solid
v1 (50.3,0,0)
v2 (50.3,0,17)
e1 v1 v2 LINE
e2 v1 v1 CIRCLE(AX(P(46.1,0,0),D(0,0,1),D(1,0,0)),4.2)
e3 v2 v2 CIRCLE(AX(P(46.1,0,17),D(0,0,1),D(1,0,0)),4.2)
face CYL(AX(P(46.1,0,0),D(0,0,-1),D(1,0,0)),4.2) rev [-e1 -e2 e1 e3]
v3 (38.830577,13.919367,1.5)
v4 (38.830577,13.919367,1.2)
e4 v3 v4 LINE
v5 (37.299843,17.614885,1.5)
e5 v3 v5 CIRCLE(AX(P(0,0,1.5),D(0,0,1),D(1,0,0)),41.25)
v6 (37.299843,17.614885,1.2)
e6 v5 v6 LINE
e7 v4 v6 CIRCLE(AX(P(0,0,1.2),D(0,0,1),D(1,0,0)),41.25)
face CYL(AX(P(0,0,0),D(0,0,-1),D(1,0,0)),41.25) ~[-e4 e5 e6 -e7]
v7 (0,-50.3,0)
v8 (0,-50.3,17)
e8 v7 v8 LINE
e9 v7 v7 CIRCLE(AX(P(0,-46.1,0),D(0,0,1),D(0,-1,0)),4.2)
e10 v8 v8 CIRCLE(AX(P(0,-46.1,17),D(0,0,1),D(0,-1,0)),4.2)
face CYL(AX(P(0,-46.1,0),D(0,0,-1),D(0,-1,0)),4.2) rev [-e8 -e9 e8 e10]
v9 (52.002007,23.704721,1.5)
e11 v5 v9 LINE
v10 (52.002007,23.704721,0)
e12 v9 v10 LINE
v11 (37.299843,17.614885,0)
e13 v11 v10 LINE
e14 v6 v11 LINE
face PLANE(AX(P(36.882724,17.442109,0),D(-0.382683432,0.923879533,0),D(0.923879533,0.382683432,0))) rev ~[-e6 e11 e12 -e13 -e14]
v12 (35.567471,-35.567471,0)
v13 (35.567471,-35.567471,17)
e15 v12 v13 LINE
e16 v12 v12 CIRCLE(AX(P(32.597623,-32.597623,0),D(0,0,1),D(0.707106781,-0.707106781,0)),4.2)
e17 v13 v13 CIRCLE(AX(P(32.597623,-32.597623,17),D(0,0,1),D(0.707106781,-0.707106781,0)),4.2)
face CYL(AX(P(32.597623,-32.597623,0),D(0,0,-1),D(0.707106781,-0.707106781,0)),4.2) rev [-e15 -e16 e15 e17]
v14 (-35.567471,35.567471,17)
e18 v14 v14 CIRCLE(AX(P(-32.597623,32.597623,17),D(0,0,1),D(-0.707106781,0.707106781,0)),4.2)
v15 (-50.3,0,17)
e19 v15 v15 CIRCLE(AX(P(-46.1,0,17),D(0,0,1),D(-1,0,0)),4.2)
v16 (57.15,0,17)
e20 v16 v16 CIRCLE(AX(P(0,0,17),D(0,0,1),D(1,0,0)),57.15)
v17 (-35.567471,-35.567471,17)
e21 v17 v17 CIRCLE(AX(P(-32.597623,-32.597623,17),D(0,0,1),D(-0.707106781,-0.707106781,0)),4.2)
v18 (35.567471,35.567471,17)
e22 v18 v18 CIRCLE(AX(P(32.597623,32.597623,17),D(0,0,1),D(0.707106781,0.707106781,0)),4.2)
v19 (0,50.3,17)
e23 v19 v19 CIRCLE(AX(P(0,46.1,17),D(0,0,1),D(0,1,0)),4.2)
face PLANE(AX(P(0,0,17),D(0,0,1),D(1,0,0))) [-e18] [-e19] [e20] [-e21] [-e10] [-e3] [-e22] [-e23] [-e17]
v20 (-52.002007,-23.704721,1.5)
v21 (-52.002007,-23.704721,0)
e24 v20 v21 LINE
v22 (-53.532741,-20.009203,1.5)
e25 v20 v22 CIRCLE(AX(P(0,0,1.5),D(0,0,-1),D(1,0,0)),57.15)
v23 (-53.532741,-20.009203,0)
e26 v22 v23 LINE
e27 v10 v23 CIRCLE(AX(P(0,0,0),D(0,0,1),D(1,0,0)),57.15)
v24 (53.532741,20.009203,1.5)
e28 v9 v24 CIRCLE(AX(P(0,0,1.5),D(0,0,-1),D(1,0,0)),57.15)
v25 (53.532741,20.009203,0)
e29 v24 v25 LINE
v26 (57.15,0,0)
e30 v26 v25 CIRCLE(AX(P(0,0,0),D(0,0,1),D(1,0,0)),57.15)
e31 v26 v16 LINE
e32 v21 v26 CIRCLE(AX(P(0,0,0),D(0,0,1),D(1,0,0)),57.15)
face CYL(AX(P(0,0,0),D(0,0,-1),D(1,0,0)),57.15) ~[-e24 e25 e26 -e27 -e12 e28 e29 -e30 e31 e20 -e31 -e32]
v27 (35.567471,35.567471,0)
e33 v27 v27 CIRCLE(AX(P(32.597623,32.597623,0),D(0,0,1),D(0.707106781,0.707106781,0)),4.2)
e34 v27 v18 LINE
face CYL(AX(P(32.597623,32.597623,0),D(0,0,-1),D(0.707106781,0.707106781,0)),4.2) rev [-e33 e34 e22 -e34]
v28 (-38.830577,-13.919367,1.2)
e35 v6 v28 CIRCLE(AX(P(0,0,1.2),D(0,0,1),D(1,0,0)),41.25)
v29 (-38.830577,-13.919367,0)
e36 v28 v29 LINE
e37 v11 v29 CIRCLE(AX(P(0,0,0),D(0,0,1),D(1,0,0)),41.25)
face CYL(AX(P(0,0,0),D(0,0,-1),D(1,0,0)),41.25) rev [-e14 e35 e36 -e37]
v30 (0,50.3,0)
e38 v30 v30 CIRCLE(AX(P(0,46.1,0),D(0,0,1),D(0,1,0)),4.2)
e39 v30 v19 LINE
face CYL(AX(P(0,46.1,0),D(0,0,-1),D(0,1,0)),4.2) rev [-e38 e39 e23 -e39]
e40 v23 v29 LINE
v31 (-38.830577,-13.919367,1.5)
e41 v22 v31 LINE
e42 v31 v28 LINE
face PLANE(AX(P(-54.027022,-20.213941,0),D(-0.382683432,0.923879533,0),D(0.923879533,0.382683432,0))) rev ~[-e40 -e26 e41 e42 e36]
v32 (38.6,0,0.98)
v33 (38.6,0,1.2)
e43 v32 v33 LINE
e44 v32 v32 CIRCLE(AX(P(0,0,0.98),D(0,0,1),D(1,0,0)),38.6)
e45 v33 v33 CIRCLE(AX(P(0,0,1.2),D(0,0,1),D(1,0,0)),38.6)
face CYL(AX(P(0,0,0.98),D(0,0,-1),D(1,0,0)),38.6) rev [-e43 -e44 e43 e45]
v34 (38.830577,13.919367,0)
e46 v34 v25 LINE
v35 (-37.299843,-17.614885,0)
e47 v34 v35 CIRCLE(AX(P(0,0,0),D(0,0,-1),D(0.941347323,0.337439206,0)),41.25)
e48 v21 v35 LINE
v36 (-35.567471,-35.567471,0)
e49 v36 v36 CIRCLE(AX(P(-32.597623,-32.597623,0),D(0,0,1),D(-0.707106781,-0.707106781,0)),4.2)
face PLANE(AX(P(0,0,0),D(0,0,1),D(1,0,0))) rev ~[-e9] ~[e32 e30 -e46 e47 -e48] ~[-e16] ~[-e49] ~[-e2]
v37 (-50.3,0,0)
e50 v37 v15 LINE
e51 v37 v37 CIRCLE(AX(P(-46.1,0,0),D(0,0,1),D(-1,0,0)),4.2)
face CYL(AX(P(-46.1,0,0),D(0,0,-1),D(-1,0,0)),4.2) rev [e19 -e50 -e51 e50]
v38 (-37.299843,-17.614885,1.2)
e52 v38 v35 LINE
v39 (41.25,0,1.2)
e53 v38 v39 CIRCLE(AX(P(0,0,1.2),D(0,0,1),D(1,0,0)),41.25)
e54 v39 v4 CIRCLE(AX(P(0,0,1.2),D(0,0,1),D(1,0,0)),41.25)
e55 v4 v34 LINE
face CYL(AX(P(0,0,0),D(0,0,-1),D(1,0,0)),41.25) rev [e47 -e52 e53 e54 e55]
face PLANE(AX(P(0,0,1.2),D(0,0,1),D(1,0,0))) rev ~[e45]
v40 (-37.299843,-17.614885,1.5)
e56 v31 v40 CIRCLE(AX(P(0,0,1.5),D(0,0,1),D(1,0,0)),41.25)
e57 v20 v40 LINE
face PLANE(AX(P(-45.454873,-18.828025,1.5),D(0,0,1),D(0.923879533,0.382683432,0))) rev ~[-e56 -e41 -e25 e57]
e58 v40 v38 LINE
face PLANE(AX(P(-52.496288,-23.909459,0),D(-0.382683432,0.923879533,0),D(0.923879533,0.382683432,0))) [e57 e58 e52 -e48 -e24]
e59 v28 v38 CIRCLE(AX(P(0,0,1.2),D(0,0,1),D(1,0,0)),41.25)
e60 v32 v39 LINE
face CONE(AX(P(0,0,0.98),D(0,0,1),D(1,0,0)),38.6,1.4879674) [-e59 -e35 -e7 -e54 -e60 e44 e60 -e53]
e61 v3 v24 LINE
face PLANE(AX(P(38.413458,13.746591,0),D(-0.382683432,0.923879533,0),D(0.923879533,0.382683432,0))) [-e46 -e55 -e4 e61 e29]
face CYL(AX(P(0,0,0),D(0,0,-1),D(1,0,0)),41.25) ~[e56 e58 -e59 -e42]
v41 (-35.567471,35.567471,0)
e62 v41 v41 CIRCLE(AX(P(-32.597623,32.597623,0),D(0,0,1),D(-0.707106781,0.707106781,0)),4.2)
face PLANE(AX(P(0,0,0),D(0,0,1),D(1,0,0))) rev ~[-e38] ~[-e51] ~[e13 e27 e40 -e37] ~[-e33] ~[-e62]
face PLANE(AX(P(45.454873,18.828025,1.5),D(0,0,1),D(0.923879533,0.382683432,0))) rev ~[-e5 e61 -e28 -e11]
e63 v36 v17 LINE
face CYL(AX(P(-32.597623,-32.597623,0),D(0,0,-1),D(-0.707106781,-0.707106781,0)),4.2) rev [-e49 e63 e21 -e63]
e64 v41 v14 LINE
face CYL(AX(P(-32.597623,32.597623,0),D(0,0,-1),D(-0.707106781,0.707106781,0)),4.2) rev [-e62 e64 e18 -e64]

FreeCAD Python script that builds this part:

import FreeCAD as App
import Part
import Sketcher
from FreeCAD import Vector


def add_polygon(sketch, points):
    """Adds a closed chain of lines whose ends are joined by coincident constraints."""
    first, n = sketch.GeometryCount, len(points)
    for a, b in zip(points, points[1:] + points[:1]):
        sketch.addGeometry(Part.LineSegment(App.Vector(*a, 0), App.Vector(*b, 0)), False)
    for i in range(n):
        sketch.addConstraint(Sketcher.Constraint("Coincident", first + i, 2, first + (i + 1) % n, 1))

doc = App.newDocument("Part")
body = doc.addObject("PartDesign::Body", "Body")

sketch1 = body.newObject("Sketcher::SketchObject", "Sketch")
sketch1.AttachmentSupport = (doc.getObject("XY_Plane"), [""])
sketch1.MapMode = "FlatFace"
sketch1.addGeometry(Part.Circle(Vector(0, 0, 0), Vector(0, 0, 1), 41), False)
sketch1.addConstraint(Sketcher.Constraint("Coincident", 0, 3, -1, 1))
sketch1.addConstraint(Sketcher.Constraint("Diameter", 0, 82.5))
pad1 = body.newObject("PartDesign::Pad", "Pad")
pad1.Profile = sketch1
pad1.Length = 1.5
body2 = doc.addObject("PartDesign::Body", "Body001")

sketch2 = body2.newObject("Sketcher::SketchObject", "Sketch001")
sketch2.AttachmentSupport = (doc.getObject("XY_Plane001"), [""])
sketch2.MapMode = "FlatFace"
add_polygon(sketch2, [(40.8, 2), (40.8, -2), (57.6, -2), (57.6, 2)])
sketch2.addConstraint(Sketcher.Constraint("Vertical", 0))
sketch2.addConstraint(Sketcher.Constraint("Horizontal", 1))
sketch2.addConstraint(Sketcher.Constraint("Vertical", 2))
sketch2.addConstraint(Sketcher.Constraint("Horizontal", 3))
sketch2.addConstraint(Sketcher.Constraint("DistanceY", 0, 2, 0, 1, 4.0))
sketch2.addConstraint(Sketcher.Constraint("DistanceX", 1, 1, 1, 2, 16.9))
sketch2.addConstraint(Sketcher.Constraint("DistanceY", 0, 2, -1, 1, 2.0))
sketch2.addConstraint(Sketcher.Constraint("DistanceX", -1, 1, 0, 2, 40.75))
pad2 = body2.newObject("PartDesign::Pad", "Pad001")
pad2.Profile = sketch2
pad2.Length = 1.5
body3 = doc.addObject("PartDesign::Body", "Body002")
body3.AllowCompound = True

sketch3 = body3.newObject("Sketcher::SketchObject", "Sketch002")
sketch3.AttachmentSupport = (doc.getObject("XY_Plane002"), [""])
sketch3.MapMode = "FlatFace"
add_polygon(sketch3, [(-57.6, 2), (-57.6, -2), (-40.8, -2), (-40.8, 2)])
sketch3.addConstraint(Sketcher.Constraint("Vertical", 0))
sketch3.addConstraint(Sketcher.Constraint("Horizontal", 1))
sketch3.addConstraint(Sketcher.Constraint("Vertical", 2))
sketch3.addConstraint(Sketcher.Constraint("Horizontal", 3))
sketch3.addConstraint(Sketcher.Constraint("DistanceY", 0, 2, 0, 1, 4.0))
sketch3.addConstraint(Sketcher.Constraint("DistanceX", 1, 1, 1, 2, 16.9))
sketch3.addConstraint(Sketcher.Constraint("DistanceY", 0, 2, -1, 1, 2.0))
sketch3.addConstraint(Sketcher.Constraint("DistanceX", 0, 2, -1, 1, 57.65))
pad3 = body3.newObject("PartDesign::Pad", "Pad002")
pad3.Profile = sketch3
pad3.Length = 1.5
doc.recompute()

boolean = body3.newObject("PartDesign::Boolean", "Boolean")
boolean.Type = "Fuse"
boolean.addObjects([body2])
body4 = doc.addObject("PartDesign::Body", "Body003")
body4.AllowCompound = True
doc.recompute()

body3.Placement = App.Placement(Vector(0, 0, 0), App.Rotation(Vector(0, 0, 1), 22.5))
boolean2 = body4.newObject("PartDesign::Boolean", "Boolean001")
boolean2.Type = "Fuse"
boolean2.addObjects([body3])
doc.recompute()

boolean3 = body4.newObject("PartDesign::Boolean", "Boolean002")
boolean3.Type = "Cut"
boolean3.addObjects([body])
body5 = doc.addObject("PartDesign::Body", "Body004")

sketch4 = body5.newObject("Sketcher::SketchObject", "Sketch003")
sketch4.AttachmentSupport = (doc.getObject("XY_Plane004"), [""])
sketch4.MapMode = "FlatFace"
sketch4.addGeometry(Part.Circle(Vector(46.1, 0, 0), Vector(0, 0, 1), 4.2), False)
sketch4.addConstraint(Sketcher.Constraint("PointOnObject", 0, 3, -1))
sketch4.addConstraint(Sketcher.Constraint("Diameter", 0, 8.4))
sketch4.addConstraint(Sketcher.Constraint("DistanceX", -1, 1, 0, 3, 46.1))
pad4 = body5.newObject("PartDesign::Pad", "Pad003")
pad4.Profile = sketch4
pad4.Length = 17
body6 = doc.addObject("PartDesign::Body", "Body005")
body6.AllowCompound = True
doc.recompute()

body6.BaseFeature = body5
doc.recompute()

body7 = doc.addObject("PartDesign::Body", "Body006")
body7.BaseFeature = body5
body7.Placement = App.Placement(Vector(0, 0, 0), App.Rotation(Vector(0, 0, 1), 45))
boolean4 = body6.newObject("PartDesign::Boolean", "Boolean003")
boolean4.Type = "Fuse"
boolean4.addObjects([body7])
doc.recompute()

body8 = doc.addObject("PartDesign::Body", "Body007")
body8.BaseFeature = body5
body8.Placement = App.Placement(Vector(0, 0, 0), App.Rotation(Vector(0, 0, 1), 90))
boolean5 = body6.newObject("PartDesign::Boolean", "Boolean004")
boolean5.Type = "Fuse"
boolean5.addObjects([body8])
doc.recompute()

body9 = doc.addObject("PartDesign::Body", "Body008")
body9.BaseFeature = body5
body9.Placement = App.Placement(Vector(0, 0, 0), App.Rotation(Vector(0, 0, 1), 135))
boolean6 = body6.newObject("PartDesign::Boolean", "Boolean005")
boolean6.Type = "Fuse"
boolean6.addObjects([body9])
doc.recompute()

body10 = doc.addObject("PartDesign::Body", "Body009")
body10.BaseFeature = body5
body10.Placement = App.Placement(Vector(0, 0, 0), App.Rotation(Vector(0, 0, 1), 180))
boolean7 = body6.newObject("PartDesign::Boolean", "Boolean006")
boolean7.Type = "Fuse"
boolean7.addObjects([body10])
doc.recompute()

body11 = doc.addObject("PartDesign::Body", "Body010")
body11.BaseFeature = body5
body11.Placement = App.Placement(Vector(0, 0, 0), App.Rotation(Vector(0, 0, 1), 225))
boolean8 = body6.newObject("PartDesign::Boolean", "Boolean007")
boolean8.Type = "Fuse"
boolean8.addObjects([body11])
doc.recompute()

body12 = doc.addObject("PartDesign::Body", "Body011")
body12.BaseFeature = body5
body12.Placement = App.Placement(Vector(0, 0, 0), App.Rotation(Vector(0, 0, 1), 270))
boolean9 = body6.newObject("PartDesign::Boolean", "Boolean008")
boolean9.Type = "Fuse"
boolean9.addObjects([body12])
doc.recompute()

body5.Placement = App.Placement(Vector(0, 0, 0), App.Rotation(Vector(0, 0, 1), 315))
boolean10 = body6.newObject("PartDesign::Boolean", "Boolean009")
boolean10.Type = "Fuse"
boolean10.addObjects([body5])
body13 = doc.addObject("PartDesign::Body", "Body012")

sketch5 = body13.newObject("Sketcher::SketchObject", "Sketch004")
sketch5.AttachmentSupport = (doc.getObject("XY_Plane012"), [""])
sketch5.MapMode = "FlatFace"
sketch5.addGeometry(Part.Circle(Vector(0, 0, 0), Vector(0, 0, 1), 39), False)
sketch5.addConstraint(Sketcher.Constraint("Coincident", 0, 3, -1, 1))
sketch5.addConstraint(Sketcher.Constraint("Diameter", 0, 77.2))
pad5 = body13.newObject("PartDesign::Pad", "Pad004")
pad5.Profile = sketch5
pad5.Length = 0.22
body14 = doc.addObject("PartDesign::Body", "Body013")

sketch6 = body14.newObject("Sketcher::SketchObject", "Sketch005")
sketch6.AttachmentSupport = (doc.getObject("XZ_Plane013"), [""])
sketch6.MapMode = "FlatFace"
add_polygon(sketch6, [(0, 0), (38.6, 0), (41.25, 0.22), (0, 0.22)])
sketch6.addConstraint(Sketcher.Constraint("Horizontal", 0))
sketch6.addConstraint(Sketcher.Constraint("Horizontal", 2))
sketch6.addConstraint(Sketcher.Constraint("Vertical", 3))
sketch6.addConstraint(Sketcher.Constraint("Coincident", 3, 2, -1, 1))
sketch6.addConstraint(Sketcher.Constraint("DistanceX", 0, 1, 0, 2, 38.6))
sketch6.addConstraint(Sketcher.Constraint("DistanceX", 2, 2, 2, 1, 41.25))
sketch6.addConstraint(Sketcher.Constraint("DistanceY", 3, 2, 3, 1, 0.22))
revolution = body14.newObject("PartDesign::Revolution", "Revolution")
revolution.Profile = sketch6
revolution.ReferenceAxis = (sketch6, ["V_Axis"])
revolution.Angle = 360
doc.recompute()

boolean11 = body14.newObject("PartDesign::Boolean", "Boolean010")
boolean11.Type = "Cut"
boolean11.addObjects([body13])
body15 = doc.addObject("PartDesign::Body", "Body014")
doc.recompute()

body14.Placement = App.Placement(Vector(0, 0, 0.98), App.Rotation(Vector(0, 0, 1), 0))
boolean12 = body15.newObject("PartDesign::Boolean", "Boolean011")
boolean12.Type = "Fuse"
boolean12.addObjects([body14])
body16 = doc.addObject("PartDesign::Body", "Body015")

sketch7 = body16.newObject("Sketcher::SketchObject", "Sketch006")
sketch7.AttachmentSupport = (doc.getObject("XY_Plane015"), [""])
sketch7.MapMode = "FlatFace"
sketch7.addGeometry(Part.Circle(Vector(0, 0, 0), Vector(0, 0, 1), 41), False)
sketch7.addConstraint(Sketcher.Constraint("Coincident", 0, 3, -1, 1))
sketch7.addConstraint(Sketcher.Constraint("Diameter", 0, 82.5))
pad6 = body16.newObject("PartDesign::Pad", "Pad005")
pad6.Profile = sketch7
pad6.Length = 1.2
body17 = doc.addObject("PartDesign::Body", "Body016")

sketch8 = body17.newObject("Sketcher::SketchObject", "Sketch007")
sketch8.AttachmentSupport = (doc.getObject("XY_Plane016"), [""])
sketch8.MapMode = "FlatFace"
sketch8.addGeometry(Part.Circle(Vector(0, 0, 0), Vector(0, 0, 1), 57), False)
sketch8.addConstraint(Sketcher.Constraint("Coincident", 0, 3, -1, 1))
sketch8.addConstraint(Sketcher.Constraint("Diameter", 0, 114.3))
pad7 = body17.newObject("PartDesign::Pad", "Pad006")
pad7.Profile = sketch8
pad7.Length = 17
doc.recompute()

boolean13 = body17.newObject("PartDesign::Boolean", "Boolean012")
boolean13.Type = "Cut"
boolean13.addObjects([body16])
doc.recompute()

boolean14 = body17.newObject("PartDesign::Boolean", "Boolean013")
boolean14.Type = "Fuse"
boolean14.addObjects([body15])
doc.recompute()

boolean15 = body17.newObject("PartDesign::Boolean", "Boolean014")
boolean15.Type = "Cut"
boolean15.addObjects([body6])
doc.recompute()

boolean16 = body17.newObject("PartDesign::Boolean", "Boolean015")
boolean16.Type = "Cut"
boolean16.addObjects([body4])

doc.recompute()
